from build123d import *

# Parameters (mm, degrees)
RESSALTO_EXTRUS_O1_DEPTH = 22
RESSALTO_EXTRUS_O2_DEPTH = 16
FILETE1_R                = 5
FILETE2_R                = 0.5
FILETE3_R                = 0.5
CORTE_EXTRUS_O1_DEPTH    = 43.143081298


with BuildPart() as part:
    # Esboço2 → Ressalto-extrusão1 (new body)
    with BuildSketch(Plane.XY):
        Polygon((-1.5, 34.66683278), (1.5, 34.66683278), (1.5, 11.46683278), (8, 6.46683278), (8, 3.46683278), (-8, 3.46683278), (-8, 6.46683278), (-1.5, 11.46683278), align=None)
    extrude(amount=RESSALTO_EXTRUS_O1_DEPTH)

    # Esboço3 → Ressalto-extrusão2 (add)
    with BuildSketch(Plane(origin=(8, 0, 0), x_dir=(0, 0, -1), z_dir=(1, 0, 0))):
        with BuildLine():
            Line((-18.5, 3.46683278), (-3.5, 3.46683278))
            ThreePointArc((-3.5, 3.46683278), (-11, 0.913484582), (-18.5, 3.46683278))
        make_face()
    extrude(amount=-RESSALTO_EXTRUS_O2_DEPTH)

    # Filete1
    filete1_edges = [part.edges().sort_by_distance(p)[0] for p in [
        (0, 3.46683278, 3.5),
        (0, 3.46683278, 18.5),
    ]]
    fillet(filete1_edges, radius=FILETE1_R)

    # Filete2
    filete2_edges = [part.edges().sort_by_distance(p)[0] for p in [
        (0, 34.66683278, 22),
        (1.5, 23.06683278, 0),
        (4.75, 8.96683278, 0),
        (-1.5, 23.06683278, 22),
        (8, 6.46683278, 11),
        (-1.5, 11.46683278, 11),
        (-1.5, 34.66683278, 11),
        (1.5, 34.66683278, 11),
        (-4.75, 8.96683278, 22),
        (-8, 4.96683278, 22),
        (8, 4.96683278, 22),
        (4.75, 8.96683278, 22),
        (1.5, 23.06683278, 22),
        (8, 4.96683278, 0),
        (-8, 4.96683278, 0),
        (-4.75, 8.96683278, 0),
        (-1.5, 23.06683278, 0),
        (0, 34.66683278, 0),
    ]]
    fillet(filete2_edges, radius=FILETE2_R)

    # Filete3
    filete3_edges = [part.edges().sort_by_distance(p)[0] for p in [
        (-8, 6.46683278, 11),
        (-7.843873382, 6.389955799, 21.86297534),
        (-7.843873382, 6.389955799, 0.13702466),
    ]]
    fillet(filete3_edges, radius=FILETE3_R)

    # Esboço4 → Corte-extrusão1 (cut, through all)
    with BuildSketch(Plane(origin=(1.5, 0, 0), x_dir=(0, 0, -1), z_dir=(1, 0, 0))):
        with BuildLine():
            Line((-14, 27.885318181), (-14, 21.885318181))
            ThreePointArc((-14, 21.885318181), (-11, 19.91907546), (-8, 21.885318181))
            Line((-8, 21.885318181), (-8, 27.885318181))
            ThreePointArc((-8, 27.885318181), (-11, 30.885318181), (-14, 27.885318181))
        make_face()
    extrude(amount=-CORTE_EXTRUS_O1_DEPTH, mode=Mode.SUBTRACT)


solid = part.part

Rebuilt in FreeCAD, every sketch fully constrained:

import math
import FreeCAD as App
import Part
import Sketcher
from FreeCAD import Vector
Q = App.Units.Quantity


def edges_at(feature, points):
    """Names of the edges that pass closest to the given points."""
    edges = feature.Shape.Edges
    near = lambda p: min(range(len(edges)), key=lambda i: edges[i].distToShape(Part.Vertex(*p))[0])
    return sorted({f"Edge{near(p) + 1}" for p in points})


def add_polygon(sketch, points):
    """Adds a closed chain of lines whose ends are joined by coincident constraints."""
    first, n = sketch.GeometryCount, len(points)
    for a, b in zip(points, points[1:] + points[:1]):
        sketch.addGeometry(Part.LineSegment(App.Vector(*a, 0), App.Vector(*b, 0)), False)
    for i in range(n):
        sketch.addConstraint(Sketcher.Constraint("Coincident", first + i, 2, first + (i + 1) % n, 1))

doc = App.newDocument("Part")
params = doc.addObject("Spreadsheet::Sheet", "Params")
for row, (alias, value) in enumerate([
    ("sketch1_width", "3 mm"),
    ("sketch1_width2", "16 mm"),
    ("sketch1_height", "23.2 mm"),
    ("pad1_length", "22 mm"),
    ("sketch2_height", "15 mm"),
    ("pad2_length", "16 mm"),
    ("fillet_radius", "5 mm"),
    ("fillet2_radius", "0.5 mm"),
    ("fillet3_radius", "0.5 mm"),
    ("sketch3_radius", "3 mm"),
    ("sketch3_width", "6 mm"),
], start=1):
    params.set(f"A{row}", alias)
    params.set(f"B{row}", "=" + value)
    params.setAlias(f"B{row}", alias)

body = doc.addObject("PartDesign::Body", "Body")

sketch1 = body.newObject("Sketcher::SketchObject", "Sketch")
sketch1.AttachmentSupport = (doc.getObject("XY_Plane"), [""])
sketch1.MapMode = "FlatFace"
add_polygon(sketch1, [(1.5, 34.7), (-1.5, 34.7), (-1.5, 11.5), (-8, 6.5), (-8, 3.5), (8, 3.5), (8, 6.5), (1.5, 11.5)])
sketch1.addConstraint(Sketcher.Constraint("Horizontal", 0))
sketch1.addConstraint(Sketcher.Constraint("Vertical", 1))
sketch1.addConstraint(Sketcher.Constraint("Vertical", 3))
sketch1.addConstraint(Sketcher.Constraint("Horizontal", 4))
sketch1.addConstraint(Sketcher.Constraint("Vertical", 5))
sketch1.addConstraint(Sketcher.Constraint("Vertical", 7))
sketch1.addConstraint(Sketcher.Constraint("Symmetric", 2, 2, 5, 2, -2))
sketch1.addConstraint(Sketcher.Constraint("Symmetric", 1, 2, 6, 2, -2))
sketch1.addConstraint(Sketcher.Constraint("Equal", 0, 3))
sketch1.addConstraint(Sketcher.Constraint("DistanceX", 0, 2, 0, 1, Q("3 mm")))
sketch1.addConstraint(Sketcher.Constraint("DistanceX", 4, 1, 4, 2, Q("16 mm")))
sketch1.addConstraint(Sketcher.Constraint("DistanceY", 1, 2, 1, 1, Q("23.2 mm")))
sketch1.addConstraint(Sketcher.Constraint("DistanceY", 2, 2, 1, 2, Q("5 mm")))
sketch1.addConstraint(Sketcher.Constraint("DistanceY", -1, 1, 0, 2, Q("34.666833 mm")))
sketch1.setExpression("Constraints[17]", "Params.sketch1_width")
sketch1.setExpression("Constraints[18]", "Params.sketch1_width2")
sketch1.setExpression("Constraints[19]", "Params.sketch1_height")
pad1 = body.newObject("PartDesign::Pad", "Pad")
pad1.Profile = sketch1
pad1.setExpression("Length", "Params.pad1_length")

sketch2 = body.newObject("Sketcher::SketchObject", "Sketch001")
sketch2.AttachmentSupport = (doc.getObject("YZ_Plane"), [""])
sketch2.MapMode = "FlatFace"
sketch2.AttachmentOffset = App.Placement(Vector(0, 0, 8), App.Rotation())
sketch2.addGeometry(Part.LineSegment(Vector(3, 4, 0), Vector(3, 18, 0)), False)
sketch2.addGeometry(Part.ArcOfCircle(Part.Circle(Vector(13, 11, 0), Vector(0, 0, 1), 12), math.radians(142), math.radians(218)), False)
sketch2.addConstraint(Sketcher.Constraint("Coincident", 0, 1, 1, 2))
sketch2.addConstraint(Sketcher.Constraint("Coincident", 1, 1, 0, 2))
sketch2.addConstraint(Sketcher.Constraint("Vertical", 0))
sketch2.addConstraint(Sketcher.Constraint("DistanceY", 0, 1, 0, 2, Q("15 mm")))
sketch2.addConstraint(Sketcher.Constraint("DistanceY", -1, 1, 1, 3, Q("11 mm")))
sketch2.addConstraint(Sketcher.Constraint("Radius", 1, Q("12.291623 mm")))
sketch2.addConstraint(Sketcher.Constraint("DistanceX", -1, 1, 1, 3, Q("13.205108 mm")))
sketch2.setExpression("Constraints[3]", "Params.sketch2_height")
pad2 = body.newObject("PartDesign::Pad", "Pad001")
pad2.Profile = sketch2
pad2.setExpression("Length", "Params.pad2_length")
pad2.Reversed = True
doc.recompute()

fillet = body.newObject("PartDesign::Fillet", "Fillet")
fillet.Base = (pad2, edges_at(pad2, [(0, 3.467, 3.5), (0, 3.467, 18.5)]))
fillet.setExpression("Radius", "Params.fillet_radius")
doc.recompute()

fillet2 = body.newObject("PartDesign::Fillet", "Fillet001")
fillet2.Base = (fillet, edges_at(fillet, [
    (0, 34.667, 22),
    (1.5, 23.067, 0),
    (4.75, 8.967, 0),
    (-1.5, 23.067, 22),
    (8, 6.467, 11),
    (-1.5, 11.467, 11),
    (-1.5, 34.667, 11),
    (1.5, 34.667, 11),
    (-4.75, 8.967, 22),
    (-8, 4.967, 22),
    (8, 4.967, 22),
    (4.75, 8.967, 22),
    (1.5, 23.067, 22),
    (8, 4.967, 0),
    (-8, 4.967, 0),
    (-4.75, 8.967, 0),
    (-1.5, 23.067, 0),
    (0, 34.667, 0),
]))
fillet2.setExpression("Radius", "Params.fillet2_radius")
doc.recompute()

fillet3 = body.newObject("PartDesign::Fillet", "Fillet002")
fillet3.Base = (fillet2, edges_at(fillet2, [(-8, 6.467, 11), (-7.844, 6.39, 21.863), (-7.844, 6.39, 0.137)]))
fillet3.setExpression("Radius", "Params.fillet3_radius")

sketch3 = body.newObject("Sketcher::SketchObject", "Sketch002")
sketch3.AttachmentSupport = (doc.getObject("YZ_Plane"), [""])
sketch3.MapMode = "FlatFace"
sketch3.AttachmentOffset = App.Placement(Vector(0, 0, 1.5), App.Rotation())
sketch3.addGeometry(Part.LineSegment(Vector(27.9, 14, 0), Vector(21.9, 14, 0)), False)
sketch3.addGeometry(Part.ArcOfCircle(Part.Circle(Vector(23.2, 11, 0), Vector(0, 0, 1), 3.3), math.radians(114), math.radians(246)), False)
sketch3.addGeometry(Part.LineSegment(Vector(21.9, 8, 0), Vector(27.9, 8, 0)), False)
sketch3.addGeometry(Part.ArcOfCircle(Part.Circle(Vector(27.9, 11, 0), Vector(0, 0, 1), 3), math.radians(-90), math.radians(90)), False)
sketch3.addConstraint(Sketcher.Constraint("Coincident", 0, 2, 1, 1))
sketch3.addConstraint(Sketcher.Constraint("Coincident", 1, 2, 2, 1))
sketch3.addConstraint(Sketcher.Constraint("Tangent", 2, 2, 3, 1))
sketch3.addConstraint(Sketcher.Constraint("Tangent", 3, 2, 0, 1))
sketch3.addConstraint(Sketcher.Constraint("Horizontal", 0))
sketch3.addConstraint(Sketcher.Constraint("Horizontal", 2))
sketch3.addConstraint(Sketcher.Constraint("Horizontal", 1, 3, 3, 3))
sketch3.addConstraint(Sketcher.Constraint("Radius", 3, Q("3 mm")))
sketch3.addConstraint(Sketcher.Constraint("DistanceX", 0, 2, 0, 1, Q("6 mm")))
sketch3.addConstraint(Sketcher.Constraint("DistanceY", -1, 1, 1, 3, Q("11 mm")))
sketch3.addConstraint(Sketcher.Constraint("Radius", 1, Q("3.27175 mm")))
sketch3.addConstraint(Sketcher.Constraint("DistanceX", -1, 1, 3, 3, Q("27.885318 mm")))
sketch3.setExpression("Constraints[7]", "Params.sketch3_radius")
sketch3.setExpression("Constraints[8]", "Params.sketch3_width")
pocket1 = body.newObject("PartDesign::Pocket", "Pocket")
pocket1.Profile = sketch3
pocket1.Type = "ThroughAll"

doc.recompute()
